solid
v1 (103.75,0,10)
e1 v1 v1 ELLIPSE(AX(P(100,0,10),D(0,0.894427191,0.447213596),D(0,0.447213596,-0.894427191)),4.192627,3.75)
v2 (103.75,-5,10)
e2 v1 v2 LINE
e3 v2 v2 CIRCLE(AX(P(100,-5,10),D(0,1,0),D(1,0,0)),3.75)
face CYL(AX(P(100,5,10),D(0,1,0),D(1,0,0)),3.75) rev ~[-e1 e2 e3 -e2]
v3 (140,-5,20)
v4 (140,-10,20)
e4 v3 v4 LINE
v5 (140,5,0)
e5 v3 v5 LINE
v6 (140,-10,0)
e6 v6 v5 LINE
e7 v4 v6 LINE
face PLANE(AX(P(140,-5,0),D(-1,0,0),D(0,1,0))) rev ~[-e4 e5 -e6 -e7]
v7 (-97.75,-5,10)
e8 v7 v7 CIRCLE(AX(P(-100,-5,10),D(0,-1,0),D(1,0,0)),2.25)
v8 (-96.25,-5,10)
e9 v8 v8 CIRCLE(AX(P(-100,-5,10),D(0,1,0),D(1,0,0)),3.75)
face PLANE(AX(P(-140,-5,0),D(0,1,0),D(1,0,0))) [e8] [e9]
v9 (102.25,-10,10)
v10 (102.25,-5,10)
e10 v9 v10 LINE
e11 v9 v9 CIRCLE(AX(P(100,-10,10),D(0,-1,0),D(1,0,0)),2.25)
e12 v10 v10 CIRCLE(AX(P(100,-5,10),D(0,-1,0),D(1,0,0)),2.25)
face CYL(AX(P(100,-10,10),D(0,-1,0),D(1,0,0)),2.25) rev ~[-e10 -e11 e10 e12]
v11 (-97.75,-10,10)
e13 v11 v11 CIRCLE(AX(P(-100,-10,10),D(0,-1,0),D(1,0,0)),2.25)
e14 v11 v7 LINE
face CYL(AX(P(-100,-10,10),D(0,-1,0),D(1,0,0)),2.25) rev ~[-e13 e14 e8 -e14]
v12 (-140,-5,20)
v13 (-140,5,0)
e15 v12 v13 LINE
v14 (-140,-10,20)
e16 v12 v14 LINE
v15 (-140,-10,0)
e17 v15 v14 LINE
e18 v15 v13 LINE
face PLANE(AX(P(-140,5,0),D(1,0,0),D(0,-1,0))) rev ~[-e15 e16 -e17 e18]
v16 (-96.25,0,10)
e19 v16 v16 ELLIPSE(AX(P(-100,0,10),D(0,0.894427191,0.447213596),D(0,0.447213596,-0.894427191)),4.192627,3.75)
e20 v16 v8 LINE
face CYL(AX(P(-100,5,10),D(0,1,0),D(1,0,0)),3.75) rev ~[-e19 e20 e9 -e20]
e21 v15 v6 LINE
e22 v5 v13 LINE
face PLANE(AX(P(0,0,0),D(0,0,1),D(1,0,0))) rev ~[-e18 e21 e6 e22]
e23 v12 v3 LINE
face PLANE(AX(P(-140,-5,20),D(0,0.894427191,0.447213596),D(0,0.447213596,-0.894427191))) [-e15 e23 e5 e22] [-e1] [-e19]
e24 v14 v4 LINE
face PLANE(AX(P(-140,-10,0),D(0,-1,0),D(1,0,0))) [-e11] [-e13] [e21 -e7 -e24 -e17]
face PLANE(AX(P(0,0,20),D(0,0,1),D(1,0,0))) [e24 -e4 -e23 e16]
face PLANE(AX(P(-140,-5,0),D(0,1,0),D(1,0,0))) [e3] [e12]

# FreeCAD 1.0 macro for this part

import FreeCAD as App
import Part
import Sketcher

V = App.Vector
Q = App.Units.Quantity


def add_polygon(sketch, points):
    """Adds a closed chain of lines whose ends are joined by coincident constraints."""
    first, n = sketch.GeometryCount, len(points)
    for a, b in zip(points, points[1:] + points[:1]):
        sketch.addGeometry(Part.LineSegment(App.Vector(*a, 0), App.Vector(*b, 0)), False)
    for i in range(n):
        sketch.addConstraint(Sketcher.Constraint("Coincident", first + i, 2, first + (i + 1) % n, 1))

doc = App.newDocument("Part")
body = doc.addObject("PartDesign::Body", "Body")

# Sketch on XY plane
sketch1 = doc.addObject("Sketcher::SketchObject", "Sketch")
body.addObject(sketch1)
sketch1.AttachmentSupport = (doc.XY_Plane, [""])
sketch1.MapMode = "FlatFace"
add_polygon(sketch1, [(140, -5), (140, 5), (-140, 5), (-140, -5)])  # lines 0-3
sketch1.addConstraint([
    Sketcher.Constraint("Vertical", 0),
    Sketcher.Constraint("Horizontal", 1),
    Sketcher.Constraint("Vertical", 2),
    Sketcher.Constraint("Horizontal", 3),
    Sketcher.Constraint("Symmetric", 0, 2, 2, 2, -1, 1),
    Sketcher.Constraint("DistanceX", 1, 2, 1, 1, Q("280 mm")),
    Sketcher.Constraint("DistanceY", 0, 1, 0, 2, Q("10 mm")),
])
pad1 = doc.addObject("PartDesign::Pad", "Pad")
body.addObject(pad1)
pad1.Profile = sketch1
pad1.Length = 20

# Sketch on XZ plane
sketch2 = doc.addObject("Sketcher::SketchObject", "Sketch001")
body.addObject(sketch2)
sketch2.AttachmentSupport = (doc.XZ_Plane, [""])
sketch2.MapMode = "FlatFace"
sketch2.AttachmentOffset = App.Placement(V(0, 0, 5), App.Rotation())
add_polygon(sketch2, [(-140, 20), (-140, 0), (140, 0), (140, 20)])  # lines 0-3
sketch2.addConstraint([
    Sketcher.Constraint("Vertical", 0),
    Sketcher.Constraint("Horizontal", 1),
    Sketcher.Constraint("Vertical", 2),
    Sketcher.Constraint("Horizontal", 3),
    Sketcher.Constraint("Symmetric", 0, 2, 1, 2, -1, 1),
    Sketcher.Constraint("DistanceX", 1, 1, 1, 2, Q("280 mm")),
    Sketcher.Constraint("DistanceY", 0, 2, 0, 1, Q("20 mm")),
])
pad2 = doc.addObject("PartDesign::Pad", "Pad001")
body.addObject(pad2)
pad2.Profile = sketch2
pad2.Length = 5

# Sketch on XZ plane
sketch3 = doc.addObject("Sketcher::SketchObject", "Sketch002")
body.addObject(sketch3)
sketch3.AttachmentSupport = (doc.XZ_Plane, [""])
sketch3.MapMode = "FlatFace"
sketch3.AttachmentOffset = App.Placement(V(0, 0, 10), App.Rotation())
sketch3.addGeometry([
    Part.Circle(V(-100, 10, 0), V(0, 0, 1), 2.25),
    Part.Circle(V(100, 10, 0), V(0, 0, 1), 2.25),
], False)
sketch3.addConstraint([
    Sketcher.Constraint("Equal", 0, 1),
    Sketcher.Constraint("Symmetric", 0, 3, 1, 3, -2),
    Sketcher.Constraint("Diameter", 0, Q("4.5 mm")),
    Sketcher.Constraint("DistanceY", -1, 1, 0, 3, Q("10 mm")),
    Sketcher.Constraint("DistanceX", 0, 3, 1, 3, Q("200 mm")),
])
pocket1 = doc.addObject("PartDesign::Pocket", "Pocket")
body.addObject(pocket1)
pocket1.Profile = sketch3
pocket1.Type = "ThroughAll"

# Sketch on XZ plane
sketch4 = doc.addObject("Sketcher::SketchObject", "Sketch003")
body.addObject(sketch4)
sketch4.AttachmentSupport = (doc.XZ_Plane, [""])
sketch4.MapMode = "FlatFace"
sketch4.AttachmentOffset = App.Placement(V(0, 0, -5), App.Rotation())
sketch4.addGeometry([
    Part.Circle(V(-100, 10, 0), V(0, 0, 1), 3.75),
    Part.Circle(V(100, 10, 0), V(0, 0, 1), 3.75),
], False)
sketch4.addConstraint([
    Sketcher.Constraint("Equal", 0, 1),
    Sketcher.Constraint("Symmetric", 0, 3, 1, 3, -2),
    Sketcher.Constraint("Diameter", 0, Q("7.5 mm")),
    Sketcher.Constraint("DistanceX", 0, 3, -1, 1, Q("100 mm")),
    Sketcher.Constraint("DistanceY", -1, 1, 0, 3, Q("10 mm")),
])
pocket2 = doc.addObject("PartDesign::Pocket", "Pocket001")
body.addObject(pocket2)
pocket2.Profile = sketch4
pocket2.Length = 10
pocket2.Reversed = True

# Sketch on YZ plane
sketch5 = doc.addObject("Sketcher::SketchObject", "Sketch004")
body.addObject(sketch5)
sketch5.AttachmentSupport = (doc.YZ_Plane, [""])
sketch5.MapMode = "FlatFace"
sketch5.AttachmentOffset = App.Placement(V(0, 0, -140), App.Rotation())
add_polygon(sketch5, [(5, 20), (5, 0), (-5, 20)])  # lines 0-2
sketch5.addConstraint([
    Sketcher.Constraint("Vertical", 0),
    Sketcher.Constraint("Horizontal", 2),
    Sketcher.Constraint("PointOnObject", 0, 2, -1),
    Sketcher.Constraint("DistanceX", 2, 1, 2, 2, Q("10 mm")),
    Sketcher.Constraint("DistanceY", 0, 2, 0, 1, Q("20 mm")),
    Sketcher.Constraint("DistanceX", -1, 1, 0, 2, Q("5 mm")),
])
pocket3 = doc.addObject("PartDesign::Pocket", "Pocket002")
body.addObject(pocket3)
pocket3.Profile = sketch5
pocket3.Type = "ThroughAll"
pocket3.Reversed = True

doc.recompute()
